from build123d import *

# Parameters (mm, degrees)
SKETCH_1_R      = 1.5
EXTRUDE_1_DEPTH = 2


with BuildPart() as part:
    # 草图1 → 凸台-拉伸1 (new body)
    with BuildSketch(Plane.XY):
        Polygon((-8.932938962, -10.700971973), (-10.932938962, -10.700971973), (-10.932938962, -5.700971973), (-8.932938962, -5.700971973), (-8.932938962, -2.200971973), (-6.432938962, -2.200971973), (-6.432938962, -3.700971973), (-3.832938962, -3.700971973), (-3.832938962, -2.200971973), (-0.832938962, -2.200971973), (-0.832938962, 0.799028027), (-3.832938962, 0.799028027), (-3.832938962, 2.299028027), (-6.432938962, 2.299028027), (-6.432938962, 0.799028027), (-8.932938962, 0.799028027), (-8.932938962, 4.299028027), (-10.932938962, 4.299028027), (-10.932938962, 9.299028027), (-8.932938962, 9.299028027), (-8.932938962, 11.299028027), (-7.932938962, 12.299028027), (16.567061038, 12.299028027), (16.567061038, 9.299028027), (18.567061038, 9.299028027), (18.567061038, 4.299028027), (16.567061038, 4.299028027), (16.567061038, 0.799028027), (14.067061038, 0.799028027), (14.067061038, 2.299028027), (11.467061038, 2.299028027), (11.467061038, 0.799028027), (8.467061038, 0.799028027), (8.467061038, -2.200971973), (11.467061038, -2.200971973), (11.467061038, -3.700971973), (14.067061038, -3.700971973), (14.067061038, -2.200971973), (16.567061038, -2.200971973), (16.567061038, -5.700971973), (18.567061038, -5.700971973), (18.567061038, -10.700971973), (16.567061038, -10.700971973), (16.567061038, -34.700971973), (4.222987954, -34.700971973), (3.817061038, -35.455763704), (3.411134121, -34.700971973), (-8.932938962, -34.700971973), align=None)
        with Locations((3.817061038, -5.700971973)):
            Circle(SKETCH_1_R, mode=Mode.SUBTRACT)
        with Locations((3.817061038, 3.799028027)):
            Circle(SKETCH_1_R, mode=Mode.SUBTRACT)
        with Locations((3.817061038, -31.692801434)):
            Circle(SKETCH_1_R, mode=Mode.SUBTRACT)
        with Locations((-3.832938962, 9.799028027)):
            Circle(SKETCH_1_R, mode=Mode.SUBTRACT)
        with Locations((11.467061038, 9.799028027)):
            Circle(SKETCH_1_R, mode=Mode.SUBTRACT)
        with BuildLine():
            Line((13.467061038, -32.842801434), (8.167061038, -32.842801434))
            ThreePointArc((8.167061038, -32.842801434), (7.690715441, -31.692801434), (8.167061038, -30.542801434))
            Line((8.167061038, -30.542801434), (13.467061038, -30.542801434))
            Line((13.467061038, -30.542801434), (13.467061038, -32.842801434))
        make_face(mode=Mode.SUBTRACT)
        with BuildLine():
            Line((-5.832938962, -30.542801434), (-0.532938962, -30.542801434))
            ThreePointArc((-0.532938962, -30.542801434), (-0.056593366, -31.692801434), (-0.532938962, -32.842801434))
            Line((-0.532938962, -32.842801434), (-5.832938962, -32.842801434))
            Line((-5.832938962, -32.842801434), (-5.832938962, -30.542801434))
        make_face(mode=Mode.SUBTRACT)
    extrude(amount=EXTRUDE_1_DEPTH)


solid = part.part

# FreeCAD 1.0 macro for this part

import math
import FreeCAD as App
import Part
import Sketcher
Q = App.Units.Quantity

doc = App.newDocument("Part")
body = doc.addObject("PartDesign::Body", "Body")

sketch1 = body.newObject("Sketcher::SketchObject", "Sketch")
sketch1.AttachmentSupport = (doc.getObject("XY_Plane"), [""])
sketch1.MapMode = "FlatFace"
sketch1.addGeometry([
    Part.LineSegment(App.Vector(-10.9, -10.7, 0), App.Vector(-8.9, -10.7, 0)),
    Part.LineSegment(App.Vector(-8.9, -10.7, 0), App.Vector(-8.9, -34.7, 0)),
    Part.LineSegment(App.Vector(-8.9, -34.7, 0), App.Vector(3.4, -34.7, 0)),
    Part.LineSegment(App.Vector(3.4, -34.7, 0), App.Vector(3.8, -35.5, 0)),
    Part.LineSegment(App.Vector(3.8, -35.5, 0), App.Vector(4.2, -34.7, 0)),
    Part.LineSegment(App.Vector(4.2, -34.7, 0), App.Vector(16.6, -34.7, 0)),
    Part.LineSegment(App.Vector(16.6, -34.7, 0), App.Vector(16.6, -10.7, 0)),
    Part.LineSegment(App.Vector(16.6, -10.7, 0), App.Vector(18.6, -10.7, 0)),
    Part.LineSegment(App.Vector(18.6, -10.7, 0), App.Vector(18.6, -5.7, 0)),
    Part.LineSegment(App.Vector(18.6, -5.7, 0), App.Vector(16.6, -5.7, 0)),
    Part.LineSegment(App.Vector(16.6, -5.7, 0), App.Vector(16.6, -2.2, 0)),
    Part.LineSegment(App.Vector(16.6, -2.2, 0), App.Vector(14.1, -2.2, 0)),
    Part.LineSegment(App.Vector(14.1, -2.2, 0), App.Vector(14.1, -3.7, 0)),
    Part.LineSegment(App.Vector(14.1, -3.7, 0), App.Vector(11.5, -3.7, 0)),
    Part.LineSegment(App.Vector(11.5, -3.7, 0), App.Vector(11.5, -2.2, 0)),
    Part.LineSegment(App.Vector(11.5, -2.2, 0), App.Vector(8.5, -2.2, 0)),
    Part.LineSegment(App.Vector(8.5, -2.2, 0), App.Vector(8.5, 0.8, 0)),
    Part.LineSegment(App.Vector(8.5, 0.8, 0), App.Vector(11.5, 0.8, 0)),
    Part.LineSegment(App.Vector(11.5, 0.8, 0), App.Vector(11.5, 2.3, 0)),
    Part.LineSegment(App.Vector(11.5, 2.3, 0), App.Vector(14.1, 2.3, 0)),
    Part.LineSegment(App.Vector(14.1, 2.3, 0), App.Vector(14.1, 0.8, 0)),
    Part.LineSegment(App.Vector(14.1, 0.8, 0), App.Vector(16.6, 0.8, 0)),
    Part.LineSegment(App.Vector(16.6, 0.8, 0), App.Vector(16.6, 4.3, 0)),
    Part.LineSegment(App.Vector(16.6, 4.3, 0), App.Vector(18.6, 4.3, 0)),
    Part.LineSegment(App.Vector(18.6, 4.3, 0), App.Vector(18.6, 9.3, 0)),
    Part.LineSegment(App.Vector(18.6, 9.3, 0), App.Vector(16.6, 9.3, 0)),
    Part.LineSegment(App.Vector(16.6, 9.3, 0), App.Vector(16.6, 12.3, 0)),
    Part.LineSegment(App.Vector(16.6, 12.3, 0), App.Vector(-7.9, 12.3, 0)),
    Part.LineSegment(App.Vector(-7.9, 12.3, 0), App.Vector(-8.9, 11.3, 0)),
    Part.LineSegment(App.Vector(-8.9, 11.3, 0), App.Vector(-8.9, 9.3, 0)),
    Part.LineSegment(App.Vector(-8.9, 9.3, 0), App.Vector(-10.9, 9.3, 0)),
    Part.LineSegment(App.Vector(-10.9, 9.3, 0), App.Vector(-10.9, 4.3, 0)),
    Part.LineSegment(App.Vector(-10.9, 4.3, 0), App.Vector(-8.9, 4.3, 0)),
    Part.LineSegment(App.Vector(-8.9, 4.3, 0), App.Vector(-8.9, 0.8, 0)),
    Part.LineSegment(App.Vector(-8.9, 0.8, 0), App.Vector(-6.4, 0.8, 0)),
    Part.LineSegment(App.Vector(-6.4, 0.8, 0), App.Vector(-6.4, 2.3, 0)),
    Part.LineSegment(App.Vector(-6.4, 2.3, 0), App.Vector(-3.8, 2.3, 0)),
    Part.LineSegment(App.Vector(-3.8, 2.3, 0), App.Vector(-3.8, 0.8, 0)),
    Part.LineSegment(App.Vector(-3.8, 0.8, 0), App.Vector(-0.8, 0.8, 0)),
    Part.LineSegment(App.Vector(-0.8, 0.8, 0), App.Vector(-0.8, -2.2, 0)),
    Part.LineSegment(App.Vector(-0.8, -2.2, 0), App.Vector(-3.8, -2.2, 0)),
    Part.LineSegment(App.Vector(-3.8, -2.2, 0), App.Vector(-3.8, -3.7, 0)),
    Part.LineSegment(App.Vector(-3.8, -3.7, 0), App.Vector(-6.4, -3.7, 0)),
    Part.LineSegment(App.Vector(-6.4, -3.7, 0), App.Vector(-6.4, -2.2, 0)),
    Part.LineSegment(App.Vector(-6.4, -2.2, 0), App.Vector(-8.9, -2.2, 0)),
    Part.LineSegment(App.Vector(-8.9, -2.2, 0), App.Vector(-8.9, -5.7, 0)),
    Part.LineSegment(App.Vector(-8.9, -5.7, 0), App.Vector(-10.9, -5.7, 0)),
    Part.LineSegment(App.Vector(-10.9, -5.7, 0), App.Vector(-10.9, -10.7, 0)),
    Part.LineSegment(App.Vector(13.5, -32.8, 0), App.Vector(8.2, -32.8, 0)),
    Part.ArcOfCircle(Part.Circle(App.Vector(9.3, -31.7, 0), App.Vector(0, 0, 1), 1.6), math.radians(135), math.radians(225)),
    Part.LineSegment(App.Vector(8.2, -30.5, 0), App.Vector(13.5, -30.5, 0)),
    Part.LineSegment(App.Vector(13.5, -30.5, 0), App.Vector(13.5, -32.8, 0)),
    Part.Circle(App.Vector(3.8, -31.7, 0), App.Vector(0, 0, 1), 1.5),
    Part.LineSegment(App.Vector(-5.8, -30.5, 0), App.Vector(-0.5, -30.5, 0)),
    Part.ArcOfCircle(Part.Circle(App.Vector(-1.7, -31.7, 0), App.Vector(0, 0, 1), 1.6), math.radians(-45), math.radians(45)),
    Part.LineSegment(App.Vector(-0.5, -32.8, 0), App.Vector(-5.8, -32.8, 0)),
    Part.LineSegment(App.Vector(-5.8, -32.8, 0), App.Vector(-5.8, -30.5, 0)),
    Part.Circle(App.Vector(11.5, 9.8, 0), App.Vector(0, 0, 1), 1.5),
    Part.Circle(App.Vector(3.8, -5.7, 0), App.Vector(0, 0, 1), 1.5),
    Part.Circle(App.Vector(3.8, 3.8, 0), App.Vector(0, 0, 1), 1.5),
    Part.Circle(App.Vector(-3.8, 9.8, 0), App.Vector(0, 0, 1), 1.5),
], False)
sketch1.addConstraint([
    Sketcher.Constraint("Coincident", 0, 2, 1, 1),
    Sketcher.Constraint("Coincident", 1, 2, 2, 1),
    Sketcher.Constraint("Coincident", 2, 2, 3, 1),
    Sketcher.Constraint("Coincident", 3, 2, 4, 1),
    Sketcher.Constraint("Coincident", 4, 2, 5, 1),
    Sketcher.Constraint("Coincident", 5, 2, 6, 1),
    Sketcher.Constraint("Coincident", 6, 2, 7, 1),
    Sketcher.Constraint("Coincident", 7, 2, 8, 1),
    Sketcher.Constraint("Coincident", 8, 2, 9, 1),
    Sketcher.Constraint("Coincident", 9, 2, 10, 1),
    Sketcher.Constraint("Coincident", 10, 2, 11, 1),
    Sketcher.Constraint("Coincident", 11, 2, 12, 1),
    Sketcher.Constraint("Coincident", 12, 2, 13, 1),
    Sketcher.Constraint("Coincident", 13, 2, 14, 1),
    Sketcher.Constraint("Coincident", 14, 2, 15, 1),
    Sketcher.Constraint("Coincident", 15, 2, 16, 1),
    Sketcher.Constraint("Coincident", 16, 2, 17, 1),
    Sketcher.Constraint("Coincident", 17, 2, 18, 1),
    Sketcher.Constraint("Coincident", 18, 2, 19, 1),
    Sketcher.Constraint("Coincident", 19, 2, 20, 1),
    Sketcher.Constraint("Coincident", 20, 2, 21, 1),
    Sketcher.Constraint("Coincident", 21, 2, 22, 1),
    Sketcher.Constraint("Coincident", 22, 2, 23, 1),
    Sketcher.Constraint("Coincident", 23, 2, 24, 1),
    Sketcher.Constraint("Coincident", 24, 2, 25, 1),
    Sketcher.Constraint("Coincident", 25, 2, 26, 1),
    Sketcher.Constraint("Coincident", 26, 2, 27, 1),
    Sketcher.Constraint("Coincident", 27, 2, 28, 1),
    Sketcher.Constraint("Coincident", 28, 2, 29, 1),
    Sketcher.Constraint("Coincident", 29, 2, 30, 1),
    Sketcher.Constraint("Coincident", 30, 2, 31, 1),
    Sketcher.Constraint("Coincident", 31, 2, 32, 1),
    Sketcher.Constraint("Coincident", 32, 2, 33, 1),
    Sketcher.Constraint("Coincident", 33, 2, 34, 1),
    Sketcher.Constraint("Coincident", 34, 2, 35, 1),
    Sketcher.Constraint("Coincident", 35, 2, 36, 1),
    Sketcher.Constraint("Coincident", 36, 2, 37, 1),
    Sketcher.Constraint("Coincident", 37, 2, 38, 1),
    Sketcher.Constraint("Coincident", 38, 2, 39, 1),
    Sketcher.Constraint("Coincident", 39, 2, 40, 1),
    Sketcher.Constraint("Coincident", 40, 2, 41, 1),
    Sketcher.Constraint("Coincident", 41, 2, 42, 1),
    Sketcher.Constraint("Coincident", 42, 2, 43, 1),
    Sketcher.Constraint("Coincident", 43, 2, 44, 1),
    Sketcher.Constraint("Coincident", 44, 2, 45, 1),
    Sketcher.Constraint("Coincident", 45, 2, 46, 1),
    Sketcher.Constraint("Coincident", 46, 2, 47, 1),
    Sketcher.Constraint("Coincident", 47, 2, 0, 1),
    Sketcher.Constraint("Coincident", 48, 2, 49, 2),
    Sketcher.Constraint("Coincident", 49, 1, 50, 1),
    Sketcher.Constraint("Coincident", 50, 2, 51, 1),
    Sketcher.Constraint("Coincident", 51, 2, 48, 1),
    Sketcher.Constraint("Coincident", 53, 2, 54, 2),
    Sketcher.Constraint("Coincident", 54, 1, 55, 1),
    Sketcher.Constraint("Coincident", 55, 2, 56, 1),
    Sketcher.Constraint("Coincident", 56, 2, 53, 1),
    Sketcher.Constraint("Horizontal", 0),
    Sketcher.Constraint("Vertical", 1),
    Sketcher.Constraint("Horizontal", 2),
    Sketcher.Constraint("Horizontal", 5),
    Sketcher.Constraint("Vertical", 6),
    Sketcher.Constraint("Horizontal", 7),
    Sketcher.Constraint("Vertical", 8),
    Sketcher.Constraint("Horizontal", 9),
    Sketcher.Constraint("Vertical", 10),
    Sketcher.Constraint("Horizontal", 11),
    Sketcher.Constraint("Vertical", 12),
    Sketcher.Constraint("Horizontal", 13),
    Sketcher.Constraint("Vertical", 14),
    Sketcher.Constraint("Horizontal", 15),
    Sketcher.Constraint("Vertical", 16),
    Sketcher.Constraint("Horizontal", 17),
    Sketcher.Constraint("Vertical", 18),
    Sketcher.Constraint("Horizontal", 19),
    Sketcher.Constraint("Vertical", 20),
    Sketcher.Constraint("Horizontal", 21),
    Sketcher.Constraint("Vertical", 22),
    Sketcher.Constraint("Horizontal", 23),
    Sketcher.Constraint("Vertical", 24),
    Sketcher.Constraint("Horizontal", 25),
    Sketcher.Constraint("Vertical", 26),
    Sketcher.Constraint("Horizontal", 27),
    Sketcher.Constraint("Vertical", 29),
    Sketcher.Constraint("Horizontal", 30),
    Sketcher.Constraint("Vertical", 31),
    Sketcher.Constraint("Horizontal", 32),
    Sketcher.Constraint("Vertical", 33),
    Sketcher.Constraint("Horizontal", 34),
    Sketcher.Constraint("Vertical", 35),
    Sketcher.Constraint("Horizontal", 36),
    Sketcher.Constraint("Vertical", 37),
    Sketcher.Constraint("Horizontal", 38),
    Sketcher.Constraint("Vertical", 39),
    Sketcher.Constraint("Horizontal", 40),
    Sketcher.Constraint("Vertical", 41),
    Sketcher.Constraint("Horizontal", 42),
    Sketcher.Constraint("Vertical", 43),
    Sketcher.Constraint("Horizontal", 44),
    Sketcher.Constraint("Vertical", 45),
    Sketcher.Constraint("Horizontal", 46),
    Sketcher.Constraint("Vertical", 47),
    Sketcher.Constraint("Horizontal", 48),
    Sketcher.Constraint("Horizontal", 50),
    Sketcher.Constraint("Vertical", 51),
    Sketcher.Constraint("Horizontal", 53),
    Sketcher.Constraint("Horizontal", 55),
    Sketcher.Constraint("Vertical", 56),
    Sketcher.Constraint("Equal", 49, 54),
    Sketcher.Constraint("Equal", 52, 57),
    Sketcher.Constraint("Equal", 57, 58),
    Sketcher.Constraint("Equal", 58, 59),
    Sketcher.Constraint("Equal", 59, 60),
    Sketcher.Constraint("Horizontal", 49, 3, 52, 3),
    Sketcher.Constraint("Horizontal", 52, 3, 54, 3),
    Sketcher.Constraint("Horizontal", 57, 3, 60, 3),
    Sketcher.Constraint("Horizontal", 2, 2, 4, 2),
    Sketcher.Constraint("Horizontal", 0, 2, 6, 2),
    Sketcher.Constraint("Horizontal", 58, 3, 8, 2),
    Sketcher.Constraint("Horizontal", 11, 2, 14, 2),
    Sketcher.Constraint("Horizontal", 17, 2, 20, 2),
    Sketcher.Constraint("Horizontal", 25, 2, 29, 2),
    Sketcher.Constraint("Horizontal", 23, 2, 31, 2),
    Sketcher.Constraint("Horizontal", 21, 2, 33, 2),
    Sketcher.Constraint("Horizontal", 19, 2, 35, 2),
    Sketcher.Constraint("Horizontal", 34, 2, 37, 2),
    Sketcher.Constraint("Horizontal", 15, 2, 39, 2),
    Sketcher.Constraint("Horizontal", 13, 2, 41, 2),
    Sketcher.Constraint("Horizontal", 40, 2, 43, 2),
    Sketcher.Constraint("Horizontal", 9, 2, 45, 2),
    Sketcher.Constraint("Horizontal", 50, 2, 53, 2),
    Sketcher.Constraint("Horizontal", 51, 2, 54, 1),
    Sketcher.Constraint("Vertical", 52, 3, 58, 3),
    Sketcher.Constraint("Vertical", 58, 3, 59, 3),
    Sketcher.Constraint("Vertical", 59, 3, 3, 2),
    Sketcher.Constraint("Vertical", 6, 2, 9, 2),
    Sketcher.Constraint("Vertical", 57, 3, 13, 2),
    Sketcher.Constraint("Vertical", 14, 2, 17, 2),
    Sketcher.Constraint("Vertical", 12, 2, 19, 2),
    Sketcher.Constraint("Vertical", 10, 2, 21, 2),
    Sketcher.Constraint("Vertical", 8, 2, 23, 2),
    Sketcher.Constraint("Vertical", 22, 2, 25, 2),
    Sketcher.Constraint("Vertical", 1, 2, 28, 2),
    Sketcher.Constraint("Vertical", 29, 2, 32, 2),
    Sketcher.Constraint("Vertical", 60, 3, 36, 2),
    Sketcher.Constraint("Vertical", 37, 2, 40, 2),
    Sketcher.Constraint("Vertical", 35, 2, 42, 2),
    Sketcher.Constraint("Vertical", 33, 2, 44, 2),
    Sketcher.Constraint("Vertical", 31, 2, 46, 2),
    Sketcher.Constraint("Vertical", 48, 2, 49, 1),
    Sketcher.Constraint("Equal", 2, 5),
    Sketcher.Constraint("Equal", 0, 7),
    Sketcher.Constraint("Equal", 21, 34),
    Sketcher.Constraint("Equal", 19, 36),
    Sketcher.Constraint("Equal", 17, 38),
    Sketcher.Constraint("Equal", 50, 53),
    Sketcher.Constraint("Equal", 40, 16),
    Sketcher.Constraint("Equal", 14, 18),
    Sketcher.Constraint("Equal", 10, 22),
    Sketcher.Constraint("Equal", 8, 24),
    Sketcher.Constraint("Equal", 16, 26),
    Sketcher.Constraint("Equal", 46, 29),
    Sketcher.Constraint("Equal", 3, 4),
    Sketcher.Constraint("Diameter", 52, 3.0),
    Sketcher.Constraint("DistanceX", 0, 1, 0, 2, 2.0),
    Sketcher.Constraint("DistanceX", 15, 2, 15, 1, 3.0),
    Sketcher.Constraint("DistanceY", 1, 2, 1, 1, 24.0),
    Sketcher.Constraint("DistanceY", 8, 1, 8, 2, 5.0),
    Sketcher.Constraint("Angle", 28, Q("-135 deg")),
    Sketcher.Constraint("DistanceX", 11, 2, 11, 1, 2.5),
    Sketcher.Constraint("DistanceX", 13, 2, 13, 1, 2.6),
    Sketcher.Constraint("DistanceX", 27, 2, 27, 1, 24.5),
    Sketcher.Constraint("DistanceX", 48, 2, 48, 1, 5.3),
    Sketcher.Constraint("DistanceY", 10, 1, 10, 2, 3.5),
    Sketcher.Constraint("DistanceY", 12, 2, 12, 1, 1.5),
    Sketcher.Constraint("DistanceY", 51, 2, 51, 1, 2.3),
    Sketcher.Constraint("Radius", 49, 1.626346),
    Sketcher.Constraint("DistanceY", 49, 3, -1, 1, 31.692801),
    Sketcher.Constraint("DistanceX", 2, 1, 2, 2, 12.344073),
    Sketcher.Constraint("DistanceX", -1, 1, 49, 3, 9.317061),
    Sketcher.Constraint("DistanceX", -1, 1, 52, 3, 3.817061),
    Sketcher.Constraint("DistanceX", 54, 3, -1, 1, 1.682939),
    Sketcher.Constraint("DistanceY", -1, 1, 57, 3, 9.799028),
    Sketcher.Constraint("DistanceY", 58, 3, -1, 1, 5.700972),
    Sketcher.Constraint("DistanceY", -1, 1, 59, 3, 3.799028),
    Sketcher.Constraint("Distance", 3, 0.857022),
])
pad1 = body.newObject("PartDesign::Pad", "Pad")
pad1.Profile = sketch1
pad1.Length = 2

doc.recompute()
